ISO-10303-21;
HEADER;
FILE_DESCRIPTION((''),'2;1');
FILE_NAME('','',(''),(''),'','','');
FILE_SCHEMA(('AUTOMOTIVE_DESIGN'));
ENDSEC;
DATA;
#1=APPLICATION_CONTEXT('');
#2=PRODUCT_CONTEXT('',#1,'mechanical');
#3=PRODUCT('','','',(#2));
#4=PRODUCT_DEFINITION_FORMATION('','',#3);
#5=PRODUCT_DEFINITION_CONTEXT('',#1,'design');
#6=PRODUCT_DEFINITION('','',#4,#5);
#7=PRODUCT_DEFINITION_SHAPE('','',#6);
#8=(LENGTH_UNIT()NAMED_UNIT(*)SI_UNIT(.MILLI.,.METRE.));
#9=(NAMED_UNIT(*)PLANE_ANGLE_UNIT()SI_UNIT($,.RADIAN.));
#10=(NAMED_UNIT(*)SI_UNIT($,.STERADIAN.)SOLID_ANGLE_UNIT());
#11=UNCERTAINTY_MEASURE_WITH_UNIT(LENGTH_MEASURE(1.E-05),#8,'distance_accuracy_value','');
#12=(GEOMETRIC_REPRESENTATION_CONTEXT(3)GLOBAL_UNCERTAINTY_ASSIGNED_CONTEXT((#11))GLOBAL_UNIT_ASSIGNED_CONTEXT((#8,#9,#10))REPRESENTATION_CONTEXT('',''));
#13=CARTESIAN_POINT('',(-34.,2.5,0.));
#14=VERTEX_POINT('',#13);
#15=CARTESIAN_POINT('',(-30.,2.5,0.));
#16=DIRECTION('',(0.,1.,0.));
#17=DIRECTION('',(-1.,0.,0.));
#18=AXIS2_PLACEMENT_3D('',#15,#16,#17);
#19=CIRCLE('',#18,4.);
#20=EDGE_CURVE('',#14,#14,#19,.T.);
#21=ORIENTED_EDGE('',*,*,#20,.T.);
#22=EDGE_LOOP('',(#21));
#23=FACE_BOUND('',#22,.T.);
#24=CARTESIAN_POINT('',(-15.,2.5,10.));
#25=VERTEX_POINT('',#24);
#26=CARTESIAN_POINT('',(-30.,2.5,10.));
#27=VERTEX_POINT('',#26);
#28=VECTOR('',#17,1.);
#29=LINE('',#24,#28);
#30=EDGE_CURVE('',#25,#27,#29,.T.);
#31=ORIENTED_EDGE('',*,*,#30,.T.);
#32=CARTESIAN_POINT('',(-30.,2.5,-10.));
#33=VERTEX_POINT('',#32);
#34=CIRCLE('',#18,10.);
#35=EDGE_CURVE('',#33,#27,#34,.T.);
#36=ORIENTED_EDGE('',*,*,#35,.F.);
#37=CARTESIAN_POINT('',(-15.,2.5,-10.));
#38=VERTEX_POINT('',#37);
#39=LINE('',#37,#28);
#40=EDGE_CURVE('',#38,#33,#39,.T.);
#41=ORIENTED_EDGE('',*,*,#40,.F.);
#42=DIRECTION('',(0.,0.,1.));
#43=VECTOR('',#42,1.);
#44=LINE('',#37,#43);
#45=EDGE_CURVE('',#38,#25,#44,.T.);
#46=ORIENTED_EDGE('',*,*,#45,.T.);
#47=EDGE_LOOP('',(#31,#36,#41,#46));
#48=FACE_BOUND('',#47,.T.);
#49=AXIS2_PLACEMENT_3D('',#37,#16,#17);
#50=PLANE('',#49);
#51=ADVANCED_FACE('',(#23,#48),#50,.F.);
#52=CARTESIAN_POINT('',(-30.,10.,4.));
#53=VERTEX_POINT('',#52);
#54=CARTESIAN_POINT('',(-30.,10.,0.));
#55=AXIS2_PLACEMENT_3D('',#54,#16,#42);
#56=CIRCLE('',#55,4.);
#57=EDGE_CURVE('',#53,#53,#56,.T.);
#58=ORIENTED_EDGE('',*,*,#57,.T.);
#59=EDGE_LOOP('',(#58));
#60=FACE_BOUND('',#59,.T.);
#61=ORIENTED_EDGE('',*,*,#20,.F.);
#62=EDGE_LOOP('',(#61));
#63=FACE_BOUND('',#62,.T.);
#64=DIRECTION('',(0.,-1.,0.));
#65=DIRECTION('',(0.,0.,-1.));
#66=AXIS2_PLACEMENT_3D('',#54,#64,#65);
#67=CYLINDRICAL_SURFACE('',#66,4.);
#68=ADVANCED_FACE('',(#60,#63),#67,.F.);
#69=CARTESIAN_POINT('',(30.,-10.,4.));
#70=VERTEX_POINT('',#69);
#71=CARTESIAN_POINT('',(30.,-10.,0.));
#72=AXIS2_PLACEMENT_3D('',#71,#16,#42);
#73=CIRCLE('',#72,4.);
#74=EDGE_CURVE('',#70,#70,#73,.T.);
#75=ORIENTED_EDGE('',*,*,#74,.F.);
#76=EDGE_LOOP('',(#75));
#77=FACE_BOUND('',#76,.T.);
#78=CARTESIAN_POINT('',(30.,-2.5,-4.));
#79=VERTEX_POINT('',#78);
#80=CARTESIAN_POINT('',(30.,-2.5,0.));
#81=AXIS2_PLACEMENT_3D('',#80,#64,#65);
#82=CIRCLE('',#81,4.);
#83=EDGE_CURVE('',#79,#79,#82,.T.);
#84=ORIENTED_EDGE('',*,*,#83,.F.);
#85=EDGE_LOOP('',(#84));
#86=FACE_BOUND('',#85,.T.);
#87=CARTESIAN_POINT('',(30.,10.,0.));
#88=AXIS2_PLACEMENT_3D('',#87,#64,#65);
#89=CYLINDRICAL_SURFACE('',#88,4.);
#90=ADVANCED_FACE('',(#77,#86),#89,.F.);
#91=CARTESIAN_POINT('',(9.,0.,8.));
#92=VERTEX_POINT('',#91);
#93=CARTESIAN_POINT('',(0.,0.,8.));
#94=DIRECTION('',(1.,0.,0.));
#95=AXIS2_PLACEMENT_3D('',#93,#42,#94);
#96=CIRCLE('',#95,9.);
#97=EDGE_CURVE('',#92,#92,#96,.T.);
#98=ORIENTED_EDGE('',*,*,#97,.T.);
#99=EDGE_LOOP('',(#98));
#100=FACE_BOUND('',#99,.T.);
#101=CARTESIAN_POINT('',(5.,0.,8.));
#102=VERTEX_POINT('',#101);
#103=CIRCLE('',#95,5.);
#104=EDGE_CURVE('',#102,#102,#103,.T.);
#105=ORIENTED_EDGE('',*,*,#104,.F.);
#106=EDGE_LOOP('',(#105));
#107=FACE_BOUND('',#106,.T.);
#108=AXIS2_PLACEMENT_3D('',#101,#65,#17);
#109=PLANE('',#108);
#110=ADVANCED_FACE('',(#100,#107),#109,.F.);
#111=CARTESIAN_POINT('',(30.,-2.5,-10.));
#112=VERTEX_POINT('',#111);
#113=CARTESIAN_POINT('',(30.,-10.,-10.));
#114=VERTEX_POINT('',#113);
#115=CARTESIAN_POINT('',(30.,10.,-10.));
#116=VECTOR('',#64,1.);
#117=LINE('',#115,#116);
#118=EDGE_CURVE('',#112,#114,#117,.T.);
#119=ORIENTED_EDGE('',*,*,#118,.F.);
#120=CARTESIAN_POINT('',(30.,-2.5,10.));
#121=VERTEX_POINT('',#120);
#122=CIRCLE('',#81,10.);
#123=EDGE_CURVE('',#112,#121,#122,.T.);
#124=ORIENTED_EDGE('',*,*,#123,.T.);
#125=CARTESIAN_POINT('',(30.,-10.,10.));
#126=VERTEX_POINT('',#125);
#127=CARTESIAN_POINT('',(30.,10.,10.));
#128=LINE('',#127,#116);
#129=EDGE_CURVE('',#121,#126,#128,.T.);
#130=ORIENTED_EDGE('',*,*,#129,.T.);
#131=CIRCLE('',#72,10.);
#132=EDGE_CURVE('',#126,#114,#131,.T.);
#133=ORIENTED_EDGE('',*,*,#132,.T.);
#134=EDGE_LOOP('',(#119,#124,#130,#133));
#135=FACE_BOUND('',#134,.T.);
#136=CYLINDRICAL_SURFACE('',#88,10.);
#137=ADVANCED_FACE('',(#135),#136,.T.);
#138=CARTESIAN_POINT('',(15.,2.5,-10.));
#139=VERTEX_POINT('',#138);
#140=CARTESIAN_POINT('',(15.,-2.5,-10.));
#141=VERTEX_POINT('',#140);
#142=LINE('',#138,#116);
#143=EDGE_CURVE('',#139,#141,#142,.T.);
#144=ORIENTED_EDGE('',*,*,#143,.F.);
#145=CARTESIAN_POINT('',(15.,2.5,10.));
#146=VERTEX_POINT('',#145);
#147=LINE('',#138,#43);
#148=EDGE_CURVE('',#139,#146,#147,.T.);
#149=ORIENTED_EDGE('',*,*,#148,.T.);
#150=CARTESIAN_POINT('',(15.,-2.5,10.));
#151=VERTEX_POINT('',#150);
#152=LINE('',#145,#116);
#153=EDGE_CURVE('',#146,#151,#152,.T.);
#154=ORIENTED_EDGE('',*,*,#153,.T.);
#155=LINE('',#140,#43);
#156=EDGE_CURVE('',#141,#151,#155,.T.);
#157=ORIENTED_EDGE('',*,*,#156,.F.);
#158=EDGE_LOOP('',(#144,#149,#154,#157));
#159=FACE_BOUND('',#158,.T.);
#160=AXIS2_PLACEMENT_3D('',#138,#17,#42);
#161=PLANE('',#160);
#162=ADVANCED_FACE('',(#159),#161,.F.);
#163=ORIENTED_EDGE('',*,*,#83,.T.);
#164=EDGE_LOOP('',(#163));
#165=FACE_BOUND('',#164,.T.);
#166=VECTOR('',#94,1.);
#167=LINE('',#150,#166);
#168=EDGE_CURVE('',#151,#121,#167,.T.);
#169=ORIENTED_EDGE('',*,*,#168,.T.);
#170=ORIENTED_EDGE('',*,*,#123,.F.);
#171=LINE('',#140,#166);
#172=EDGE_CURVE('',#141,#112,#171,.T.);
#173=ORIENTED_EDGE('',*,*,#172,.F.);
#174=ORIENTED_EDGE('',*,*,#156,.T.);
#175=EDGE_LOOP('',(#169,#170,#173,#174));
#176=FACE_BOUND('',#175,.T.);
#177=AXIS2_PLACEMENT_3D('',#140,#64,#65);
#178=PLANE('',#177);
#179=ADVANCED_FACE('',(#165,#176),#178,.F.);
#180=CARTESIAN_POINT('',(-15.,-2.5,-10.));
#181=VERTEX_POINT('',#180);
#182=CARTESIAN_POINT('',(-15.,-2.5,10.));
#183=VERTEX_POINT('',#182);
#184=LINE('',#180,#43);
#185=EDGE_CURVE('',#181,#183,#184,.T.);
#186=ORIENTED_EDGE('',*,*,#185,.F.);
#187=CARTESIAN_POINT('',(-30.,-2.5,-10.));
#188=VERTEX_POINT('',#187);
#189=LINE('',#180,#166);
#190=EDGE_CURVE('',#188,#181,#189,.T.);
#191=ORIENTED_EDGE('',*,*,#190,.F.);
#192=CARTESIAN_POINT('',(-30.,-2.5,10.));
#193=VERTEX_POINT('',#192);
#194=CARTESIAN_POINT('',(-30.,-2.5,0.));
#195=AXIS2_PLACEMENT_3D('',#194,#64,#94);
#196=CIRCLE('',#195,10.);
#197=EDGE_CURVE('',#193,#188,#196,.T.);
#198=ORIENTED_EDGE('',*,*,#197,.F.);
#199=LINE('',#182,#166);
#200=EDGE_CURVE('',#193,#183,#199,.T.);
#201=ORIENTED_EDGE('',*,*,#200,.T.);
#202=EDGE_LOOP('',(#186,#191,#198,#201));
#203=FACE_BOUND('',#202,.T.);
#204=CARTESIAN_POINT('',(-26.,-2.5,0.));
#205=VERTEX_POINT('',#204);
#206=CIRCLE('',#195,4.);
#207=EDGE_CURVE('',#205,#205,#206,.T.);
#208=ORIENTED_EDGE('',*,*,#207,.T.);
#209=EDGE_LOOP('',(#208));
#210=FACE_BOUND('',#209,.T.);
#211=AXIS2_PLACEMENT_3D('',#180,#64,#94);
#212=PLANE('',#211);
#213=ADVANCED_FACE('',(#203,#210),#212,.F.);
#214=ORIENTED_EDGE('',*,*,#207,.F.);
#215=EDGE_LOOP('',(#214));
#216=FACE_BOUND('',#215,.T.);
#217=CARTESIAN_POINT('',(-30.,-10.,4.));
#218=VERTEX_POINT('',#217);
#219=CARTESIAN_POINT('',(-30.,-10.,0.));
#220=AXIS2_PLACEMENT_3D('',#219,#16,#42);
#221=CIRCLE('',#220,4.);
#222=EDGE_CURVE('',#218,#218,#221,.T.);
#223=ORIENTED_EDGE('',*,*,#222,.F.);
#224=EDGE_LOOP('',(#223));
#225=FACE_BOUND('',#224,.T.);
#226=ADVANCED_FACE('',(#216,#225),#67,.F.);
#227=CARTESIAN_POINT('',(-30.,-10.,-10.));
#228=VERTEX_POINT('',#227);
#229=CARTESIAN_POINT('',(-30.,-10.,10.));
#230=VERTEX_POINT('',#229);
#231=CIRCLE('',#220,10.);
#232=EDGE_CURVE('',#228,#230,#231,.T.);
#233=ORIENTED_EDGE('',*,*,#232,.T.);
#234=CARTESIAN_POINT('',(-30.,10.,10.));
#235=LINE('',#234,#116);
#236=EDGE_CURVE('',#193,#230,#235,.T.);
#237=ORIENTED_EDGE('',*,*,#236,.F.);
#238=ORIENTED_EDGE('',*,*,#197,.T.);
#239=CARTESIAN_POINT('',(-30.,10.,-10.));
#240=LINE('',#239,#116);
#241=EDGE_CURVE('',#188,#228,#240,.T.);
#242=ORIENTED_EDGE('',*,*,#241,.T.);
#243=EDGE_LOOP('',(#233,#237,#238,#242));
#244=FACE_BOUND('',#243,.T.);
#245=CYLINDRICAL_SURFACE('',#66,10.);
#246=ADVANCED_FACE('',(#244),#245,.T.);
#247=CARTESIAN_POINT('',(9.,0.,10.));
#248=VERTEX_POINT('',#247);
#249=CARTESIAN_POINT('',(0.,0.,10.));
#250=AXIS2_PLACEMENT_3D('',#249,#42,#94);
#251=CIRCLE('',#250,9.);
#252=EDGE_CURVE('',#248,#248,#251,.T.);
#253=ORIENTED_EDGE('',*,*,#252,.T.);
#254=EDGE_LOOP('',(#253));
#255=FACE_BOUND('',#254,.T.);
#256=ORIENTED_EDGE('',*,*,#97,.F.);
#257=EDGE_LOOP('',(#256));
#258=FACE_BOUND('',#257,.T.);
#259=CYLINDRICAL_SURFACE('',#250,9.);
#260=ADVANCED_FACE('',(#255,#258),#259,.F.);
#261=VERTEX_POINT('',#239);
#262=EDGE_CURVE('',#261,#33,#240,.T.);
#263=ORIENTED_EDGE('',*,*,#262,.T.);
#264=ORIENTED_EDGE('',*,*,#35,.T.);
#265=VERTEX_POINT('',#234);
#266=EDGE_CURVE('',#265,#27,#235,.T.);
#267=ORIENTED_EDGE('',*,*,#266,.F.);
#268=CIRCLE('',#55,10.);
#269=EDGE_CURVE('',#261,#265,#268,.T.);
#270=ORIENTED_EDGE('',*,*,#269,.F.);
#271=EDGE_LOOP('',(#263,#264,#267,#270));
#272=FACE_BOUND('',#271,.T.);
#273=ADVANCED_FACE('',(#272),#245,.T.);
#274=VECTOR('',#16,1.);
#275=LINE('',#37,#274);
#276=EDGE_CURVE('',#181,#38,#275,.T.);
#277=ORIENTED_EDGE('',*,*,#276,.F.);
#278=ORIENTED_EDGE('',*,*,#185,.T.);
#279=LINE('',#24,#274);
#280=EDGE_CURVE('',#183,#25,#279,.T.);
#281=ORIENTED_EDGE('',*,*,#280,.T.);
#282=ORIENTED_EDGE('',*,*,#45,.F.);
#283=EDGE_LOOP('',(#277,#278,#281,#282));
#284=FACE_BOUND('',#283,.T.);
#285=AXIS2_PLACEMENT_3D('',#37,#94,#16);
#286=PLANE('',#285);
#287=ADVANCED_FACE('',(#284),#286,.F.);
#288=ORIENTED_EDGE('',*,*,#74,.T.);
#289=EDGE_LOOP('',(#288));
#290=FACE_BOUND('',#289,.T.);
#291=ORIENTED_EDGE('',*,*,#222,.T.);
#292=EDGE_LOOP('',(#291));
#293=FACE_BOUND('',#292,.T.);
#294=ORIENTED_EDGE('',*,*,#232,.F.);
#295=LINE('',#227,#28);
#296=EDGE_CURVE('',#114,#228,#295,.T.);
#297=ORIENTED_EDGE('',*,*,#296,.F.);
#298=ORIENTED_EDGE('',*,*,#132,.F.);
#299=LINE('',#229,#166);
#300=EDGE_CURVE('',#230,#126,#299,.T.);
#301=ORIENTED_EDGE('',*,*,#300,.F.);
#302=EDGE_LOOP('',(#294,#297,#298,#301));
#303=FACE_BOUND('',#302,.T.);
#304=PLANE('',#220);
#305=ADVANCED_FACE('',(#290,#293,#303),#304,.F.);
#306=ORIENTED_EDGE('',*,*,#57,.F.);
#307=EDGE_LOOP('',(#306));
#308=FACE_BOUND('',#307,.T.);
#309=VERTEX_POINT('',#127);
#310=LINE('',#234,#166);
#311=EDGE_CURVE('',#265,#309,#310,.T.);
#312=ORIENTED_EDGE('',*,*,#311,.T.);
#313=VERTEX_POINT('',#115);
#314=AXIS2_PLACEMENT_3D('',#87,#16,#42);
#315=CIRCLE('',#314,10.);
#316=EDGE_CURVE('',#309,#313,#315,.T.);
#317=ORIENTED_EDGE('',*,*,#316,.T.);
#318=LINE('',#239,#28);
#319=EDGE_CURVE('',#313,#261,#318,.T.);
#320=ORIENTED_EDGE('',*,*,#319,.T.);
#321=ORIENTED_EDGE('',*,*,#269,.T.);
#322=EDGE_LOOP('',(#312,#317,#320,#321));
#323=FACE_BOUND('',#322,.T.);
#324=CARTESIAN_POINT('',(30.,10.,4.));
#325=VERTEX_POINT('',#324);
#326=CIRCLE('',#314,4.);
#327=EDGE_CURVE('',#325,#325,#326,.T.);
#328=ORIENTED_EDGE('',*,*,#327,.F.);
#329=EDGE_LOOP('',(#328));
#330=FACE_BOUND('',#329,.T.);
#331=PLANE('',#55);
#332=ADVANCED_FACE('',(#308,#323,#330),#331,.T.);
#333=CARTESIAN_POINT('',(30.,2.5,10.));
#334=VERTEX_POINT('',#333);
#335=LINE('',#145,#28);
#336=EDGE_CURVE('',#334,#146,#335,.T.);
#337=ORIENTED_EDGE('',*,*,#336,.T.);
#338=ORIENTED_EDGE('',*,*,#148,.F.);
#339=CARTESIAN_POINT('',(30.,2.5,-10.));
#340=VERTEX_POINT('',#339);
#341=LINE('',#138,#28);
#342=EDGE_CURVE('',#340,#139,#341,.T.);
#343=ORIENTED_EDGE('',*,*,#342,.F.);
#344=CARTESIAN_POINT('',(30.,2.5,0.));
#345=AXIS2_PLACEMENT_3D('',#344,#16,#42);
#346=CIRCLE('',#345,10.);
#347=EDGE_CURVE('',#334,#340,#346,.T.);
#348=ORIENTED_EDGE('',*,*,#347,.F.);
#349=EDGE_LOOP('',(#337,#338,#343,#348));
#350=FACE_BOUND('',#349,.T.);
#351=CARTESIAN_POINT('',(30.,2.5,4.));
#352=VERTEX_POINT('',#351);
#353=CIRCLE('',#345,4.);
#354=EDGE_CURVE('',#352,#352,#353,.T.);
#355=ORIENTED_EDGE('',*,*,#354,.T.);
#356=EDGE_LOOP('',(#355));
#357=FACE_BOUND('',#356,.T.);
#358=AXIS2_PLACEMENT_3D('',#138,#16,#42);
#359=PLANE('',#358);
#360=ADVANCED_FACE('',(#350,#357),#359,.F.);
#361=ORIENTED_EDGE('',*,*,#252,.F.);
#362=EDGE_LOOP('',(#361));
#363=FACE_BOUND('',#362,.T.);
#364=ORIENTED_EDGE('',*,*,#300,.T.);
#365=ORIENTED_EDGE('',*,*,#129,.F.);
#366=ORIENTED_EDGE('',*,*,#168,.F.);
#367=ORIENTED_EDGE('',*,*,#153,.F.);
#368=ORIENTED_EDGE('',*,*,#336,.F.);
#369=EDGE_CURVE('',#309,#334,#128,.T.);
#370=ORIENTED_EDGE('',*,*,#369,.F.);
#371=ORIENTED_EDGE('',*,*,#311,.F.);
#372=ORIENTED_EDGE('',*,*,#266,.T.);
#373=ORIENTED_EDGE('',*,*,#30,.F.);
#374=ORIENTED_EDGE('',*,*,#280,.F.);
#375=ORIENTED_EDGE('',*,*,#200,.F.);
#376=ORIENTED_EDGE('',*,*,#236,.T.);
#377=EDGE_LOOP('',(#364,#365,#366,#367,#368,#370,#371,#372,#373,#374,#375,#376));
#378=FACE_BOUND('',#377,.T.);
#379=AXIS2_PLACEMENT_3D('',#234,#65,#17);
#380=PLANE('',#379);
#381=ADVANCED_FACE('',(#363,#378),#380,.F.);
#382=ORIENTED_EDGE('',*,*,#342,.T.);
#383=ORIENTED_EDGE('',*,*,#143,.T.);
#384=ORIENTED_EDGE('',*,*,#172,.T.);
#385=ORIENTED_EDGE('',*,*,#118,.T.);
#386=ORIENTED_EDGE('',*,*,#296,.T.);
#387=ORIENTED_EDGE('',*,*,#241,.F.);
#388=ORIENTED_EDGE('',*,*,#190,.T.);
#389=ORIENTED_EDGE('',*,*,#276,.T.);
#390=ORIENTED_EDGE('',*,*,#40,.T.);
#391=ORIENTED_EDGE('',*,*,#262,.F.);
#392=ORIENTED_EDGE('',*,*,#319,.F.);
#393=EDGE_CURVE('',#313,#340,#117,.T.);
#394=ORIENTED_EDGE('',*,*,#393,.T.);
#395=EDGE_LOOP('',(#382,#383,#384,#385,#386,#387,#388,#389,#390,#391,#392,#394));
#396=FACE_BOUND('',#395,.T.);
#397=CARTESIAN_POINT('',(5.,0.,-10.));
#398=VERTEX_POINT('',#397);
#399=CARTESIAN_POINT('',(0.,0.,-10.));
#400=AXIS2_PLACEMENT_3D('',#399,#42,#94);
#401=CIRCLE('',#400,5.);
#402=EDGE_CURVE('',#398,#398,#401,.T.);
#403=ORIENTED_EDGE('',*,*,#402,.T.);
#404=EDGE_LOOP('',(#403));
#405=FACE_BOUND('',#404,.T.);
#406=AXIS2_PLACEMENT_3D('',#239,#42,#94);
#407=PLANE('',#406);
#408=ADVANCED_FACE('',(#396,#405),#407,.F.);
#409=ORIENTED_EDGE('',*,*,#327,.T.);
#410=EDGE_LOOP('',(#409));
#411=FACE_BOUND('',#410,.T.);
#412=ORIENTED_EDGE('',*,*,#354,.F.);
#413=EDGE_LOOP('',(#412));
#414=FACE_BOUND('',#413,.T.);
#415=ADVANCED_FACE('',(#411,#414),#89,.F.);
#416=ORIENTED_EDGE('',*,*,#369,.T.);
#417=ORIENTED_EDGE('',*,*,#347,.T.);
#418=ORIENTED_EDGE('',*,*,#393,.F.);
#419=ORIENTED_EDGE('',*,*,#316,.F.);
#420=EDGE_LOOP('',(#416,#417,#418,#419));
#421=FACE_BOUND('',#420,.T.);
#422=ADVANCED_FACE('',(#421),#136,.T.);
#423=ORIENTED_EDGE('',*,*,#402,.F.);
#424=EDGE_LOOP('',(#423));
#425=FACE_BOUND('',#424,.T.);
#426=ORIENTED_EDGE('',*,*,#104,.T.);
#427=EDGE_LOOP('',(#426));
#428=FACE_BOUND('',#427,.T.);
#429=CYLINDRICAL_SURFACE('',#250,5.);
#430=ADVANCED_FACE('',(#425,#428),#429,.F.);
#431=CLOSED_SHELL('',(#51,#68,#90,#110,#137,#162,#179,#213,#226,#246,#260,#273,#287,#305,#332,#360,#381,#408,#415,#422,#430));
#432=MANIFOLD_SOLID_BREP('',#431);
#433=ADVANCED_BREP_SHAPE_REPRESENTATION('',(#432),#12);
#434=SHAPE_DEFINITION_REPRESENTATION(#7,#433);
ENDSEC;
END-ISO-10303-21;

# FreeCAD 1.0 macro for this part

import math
import FreeCAD as App
import Part
import Sketcher
from FreeCAD import Vector


def add_polygon(sketch, points):
    """Adds a closed chain of lines whose ends are joined by coincident constraints."""
    first, n = sketch.GeometryCount, len(points)
    for a, b in zip(points, points[1:] + points[:1]):
        sketch.addGeometry(Part.LineSegment(App.Vector(*a, 0), App.Vector(*b, 0)), False)
    for i in range(n):
        sketch.addConstraint(Sketcher.Constraint("Coincident", first + i, 2, first + (i + 1) % n, 1))

doc = App.newDocument("Part")
params = doc.addObject("Spreadsheet::Sheet", "Params")
for row, (alias, value) in enumerate([
    ("sketch1_diameter", "8 mm"),
    ("sketch1_radius", "10 mm"),
    ("sketch1_width", "60 mm"),
    ("pad1_length", "20 mm"),
    ("sketch2_width", "25 mm"),
    ("sketch2_height", "5 mm"),
    ("sketch3_diameter", "10 mm"),
    ("hole_diameter", "10 mm"),
    ("hole_cbore_diameter", "18 mm"),
    ("hole_cbore_depth", "2 mm"),
], start=1):
    params.set(f"A{row}", alias)
    params.set(f"B{row}", "=" + value)
    params.setAlias(f"B{row}", alias)

body = doc.addObject("PartDesign::Body", "Body")

# Sketch on XZ plane
sketch1 = body.newObject("Sketcher::SketchObject", "Sketch")
sketch1.AttachmentSupport = (doc.getObject("XZ_Plane"), [""])
sketch1.MapMode = "FlatFace"
sketch1.addGeometry([
    Part.LineSegment(Vector(30, -10, 0), Vector(-30, -10, 0)),  # 0
    Part.ArcOfCircle(Part.Circle(Vector(-30, 0, 0), Vector(0, 0, 1), 10), math.radians(90), math.radians(270)),  # 1
    Part.LineSegment(Vector(-30, 10, 0), Vector(30, 10, 0)),  # 2
    Part.ArcOfCircle(Part.Circle(Vector(30, 0, 0), Vector(0, 0, 1), 10), math.radians(-90), math.radians(90)),  # 3
    Part.Circle(Vector(30, 0, 0), Vector(0, 0, 1), 4),  # 4
    Part.Circle(Vector(-30, 0, 0), Vector(0, 0, 1), 4),  # 5
], False)
sketch1.addConstraint([
    Sketcher.Constraint("Tangent", 0, 2, 1, 2),
    Sketcher.Constraint("Tangent", 1, 1, 2, 1),
    Sketcher.Constraint("Tangent", 2, 2, 3, 2),
    Sketcher.Constraint("Tangent", 3, 1, 0, 1),
    Sketcher.Constraint("Horizontal", 0),
    Sketcher.Constraint("Horizontal", 2),
    Sketcher.Constraint("Coincident", 4, 3, 3, 3),
    Sketcher.Constraint("Coincident", 5, 3, 1, 3),
    Sketcher.Constraint("Equal", 4, 5),
    Sketcher.Constraint("Symmetric", 1, 3, 3, 3, -1, 1),
    Sketcher.Constraint("Diameter", 4, 8.0),
    Sketcher.Constraint("Radius", 1, 10.0),
    Sketcher.Constraint("DistanceX", 0, 2, 0, 1, 60.0),
])
sketch1.setExpression("Constraints[10]", "Params.sketch1_diameter")
sketch1.setExpression("Constraints[11]", "Params.sketch1_radius")
sketch1.setExpression("Constraints[12]", "Params.sketch1_width")
pad1 = body.newObject("PartDesign::Pad", "Pad")
pad1.Profile = sketch1
pad1.setExpression("Length", "Params.pad1_length")
pad1.Midplane = True

# Sketch on XY plane
sketch2 = body.newObject("Sketcher::SketchObject", "Sketch001")
sketch2.AttachmentSupport = (doc.getObject("XY_Plane"), [""])
sketch2.MapMode = "FlatFace"
sketch2.AttachmentOffset = App.Placement(Vector(0, 0, 10), App.Rotation())
add_polygon(sketch2, [(15, 2.5), (15, -2.5), (40, -2.5), (40, 2.5)])  # lines 0-3
add_polygon(sketch2, [(-40, 2.5), (-40, -2.5), (-15, -2.5), (-15, 2.5)])  # lines 4-7
sketch2.addConstraint([
    Sketcher.Constraint("Vertical", 0),
    Sketcher.Constraint("Horizontal", 1),
    Sketcher.Constraint("Vertical", 2),
    Sketcher.Constraint("Horizontal", 3),
    Sketcher.Constraint("Vertical", 4),
    Sketcher.Constraint("Horizontal", 5),
    Sketcher.Constraint("Vertical", 6),
    Sketcher.Constraint("Horizontal", 7),
    Sketcher.Constraint("Symmetric", 2, 2, 4, 2, -1, 1),
    Sketcher.Constraint("Symmetric", 0, 2, 6, 2, -1, 1),
    Sketcher.Constraint("Horizontal", 1, 2, 4, 2),
    Sketcher.Constraint("DistanceX", 1, 1, 1, 2, 25.0),
    Sketcher.Constraint("DistanceY", 0, 2, 0, 1, 5.0),
    Sketcher.Constraint("DistanceX", -1, 1, 0, 2, 15.0),
])
sketch2.setExpression("Constraints[19]", "Params.sketch2_width")
sketch2.setExpression("Constraints[20]", "Params.sketch2_height")
pocket1 = body.newObject("PartDesign::Pocket", "Pocket")
pocket1.Profile = sketch2
pocket1.Type = "ThroughAll"

# Sketch on XY plane
sketch3 = body.newObject("Sketcher::SketchObject", "Sketch002")
sketch3.AttachmentSupport = (doc.getObject("XY_Plane"), [""])
sketch3.MapMode = "FlatFace"
sketch3.AttachmentOffset = App.Placement(Vector(0, 0, 10), App.Rotation())
sketch3.addGeometry(Part.Circle(Vector(0, 0, 0), Vector(0, 0, 1), 5), False)
sketch3.addConstraint([
    Sketcher.Constraint("Coincident", 0, 3, -1, 1),
    Sketcher.Constraint("Diameter", 0, 10.0),
])
sketch3.setExpression("Constraints[1]", "Params.sketch3_diameter")
doc.recompute()
hole = body.newObject("PartDesign::Hole", "Hole")
hole.Profile = sketch3
hole.ThreadType = "None"
hole.setExpression("Diameter", "Params.hole_diameter")
hole.DepthType = "ThroughAll"
hole.HoleCutType = "Counterbore"
hole.setExpression("HoleCutDiameter", "Params.hole_cbore_diameter")
hole.setExpression("HoleCutDepth", "Params.hole_cbore_depth")

doc.recompute()
